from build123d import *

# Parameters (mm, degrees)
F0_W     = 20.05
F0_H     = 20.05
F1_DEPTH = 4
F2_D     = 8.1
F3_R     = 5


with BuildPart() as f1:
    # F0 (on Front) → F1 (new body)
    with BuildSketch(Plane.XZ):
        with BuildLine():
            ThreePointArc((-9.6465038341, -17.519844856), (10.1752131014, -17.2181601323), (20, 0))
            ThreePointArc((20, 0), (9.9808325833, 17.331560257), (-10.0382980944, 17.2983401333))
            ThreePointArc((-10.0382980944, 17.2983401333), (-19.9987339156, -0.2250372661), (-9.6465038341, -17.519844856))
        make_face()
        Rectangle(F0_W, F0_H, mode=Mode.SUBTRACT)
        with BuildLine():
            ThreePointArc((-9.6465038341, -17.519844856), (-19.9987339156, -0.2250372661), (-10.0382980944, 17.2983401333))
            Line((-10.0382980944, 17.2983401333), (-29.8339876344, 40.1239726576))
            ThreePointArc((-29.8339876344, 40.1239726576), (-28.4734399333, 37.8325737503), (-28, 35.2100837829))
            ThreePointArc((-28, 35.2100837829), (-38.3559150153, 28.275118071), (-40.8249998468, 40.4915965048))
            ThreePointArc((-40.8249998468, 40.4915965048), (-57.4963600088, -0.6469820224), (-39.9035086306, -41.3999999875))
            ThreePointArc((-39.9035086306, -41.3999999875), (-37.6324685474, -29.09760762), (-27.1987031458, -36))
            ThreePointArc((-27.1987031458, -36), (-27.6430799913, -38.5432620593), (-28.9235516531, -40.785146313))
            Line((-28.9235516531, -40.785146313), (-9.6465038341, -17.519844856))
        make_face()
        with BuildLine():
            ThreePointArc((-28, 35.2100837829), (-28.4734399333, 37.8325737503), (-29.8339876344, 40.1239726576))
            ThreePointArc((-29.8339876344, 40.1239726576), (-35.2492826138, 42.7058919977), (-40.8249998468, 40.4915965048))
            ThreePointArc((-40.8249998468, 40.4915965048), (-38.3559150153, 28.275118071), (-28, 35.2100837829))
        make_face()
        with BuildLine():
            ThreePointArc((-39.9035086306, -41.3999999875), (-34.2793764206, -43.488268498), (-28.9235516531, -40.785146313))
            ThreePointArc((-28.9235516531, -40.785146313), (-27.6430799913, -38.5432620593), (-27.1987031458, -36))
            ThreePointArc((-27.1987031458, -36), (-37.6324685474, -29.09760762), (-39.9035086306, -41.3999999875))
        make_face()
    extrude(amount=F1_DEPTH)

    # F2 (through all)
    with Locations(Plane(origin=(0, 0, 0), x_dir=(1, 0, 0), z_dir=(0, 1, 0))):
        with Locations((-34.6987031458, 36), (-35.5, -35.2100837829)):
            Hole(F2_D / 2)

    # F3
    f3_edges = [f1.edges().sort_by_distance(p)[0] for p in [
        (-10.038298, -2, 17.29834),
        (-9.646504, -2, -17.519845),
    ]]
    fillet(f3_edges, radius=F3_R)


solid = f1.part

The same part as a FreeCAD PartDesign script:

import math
import FreeCAD as App
import Part
import Sketcher
Q = App.Units.Quantity


def edges_at(feature, points):
    """Names of the edges that pass closest to the given points."""
    edges = feature.Shape.Edges
    near = lambda p: min(range(len(edges)), key=lambda i: edges[i].distToShape(Part.Vertex(*p))[0])
    return sorted({f"Edge{near(p) + 1}" for p in points})

doc = App.newDocument("Part")
body = doc.addObject("PartDesign::Body", "Body")

sketch1 = doc.addObject("Sketcher::SketchObject", "Sketch")
body.addObject(sketch1)
sketch1.AttachmentSupport = (doc.XZ_Plane, [""])
sketch1.MapMode = "FlatFace"
sketch1.addGeometry(Part.ArcOfCircle(Part.Circle(App.Vector(0, 0, 0), App.Vector(0, 0, 1), 20), math.radians(-119), math.radians(0)), False)
sketch1.addGeometry(Part.ArcOfCircle(Part.Circle(App.Vector(0, 0, 0), App.Vector(0, 0, 1), 20), math.radians(0), math.radians(120)), False)
sketch1.addGeometry(Part.LineSegment(App.Vector(-10, 17, 0), App.Vector(-30, 40, 0)), False)
sketch1.addGeometry(Part.ArcOfCircle(Part.Circle(App.Vector(-36, 35, 0), App.Vector(0, 0, 1), 8), math.radians(41), math.radians(135)), False)
sketch1.addGeometry(Part.ArcOfCircle(Part.Circle(App.Vector(0, 0, 0), App.Vector(0, 0, 1), 58), math.radians(135), math.radians(226)), False)
sketch1.addGeometry(Part.ArcOfCircle(Part.Circle(App.Vector(-35, -36, 0), App.Vector(0, 0, 1), 8), math.radians(-134), math.radians(-40)), False)
sketch1.addGeometry(Part.LineSegment(App.Vector(-29, -41, 0), App.Vector(-10, -18, 0)), False)
sketch1.addGeometry(Part.LineSegment(App.Vector(10, -10, 0), App.Vector(-10, -10, 0)), False)
sketch1.addGeometry(Part.LineSegment(App.Vector(-10, -10, 0), App.Vector(-10, 10, 0)), False)
sketch1.addGeometry(Part.LineSegment(App.Vector(-10, 10, 0), App.Vector(10, 10, 0)), False)
sketch1.addGeometry(Part.LineSegment(App.Vector(10, 10, 0), App.Vector(10, -10, 0)), False)
sketch1.addConstraint(Sketcher.Constraint("Tangent", 0, 2, 1, 1))
sketch1.addConstraint(Sketcher.Constraint("Coincident", 1, 2, 2, 1))
sketch1.addConstraint(Sketcher.Constraint("Tangent", 2, 2, 3, 1))
sketch1.addConstraint(Sketcher.Constraint("Tangent", 3, 2, 4, 1))
sketch1.addConstraint(Sketcher.Constraint("Tangent", 4, 2, 5, 1))
sketch1.addConstraint(Sketcher.Constraint("Tangent", 5, 2, 6, 1))
sketch1.addConstraint(Sketcher.Constraint("Coincident", 6, 2, 0, 1))
sketch1.addConstraint(Sketcher.Constraint("Coincident", 7, 2, 8, 1))
sketch1.addConstraint(Sketcher.Constraint("Coincident", 8, 2, 9, 1))
sketch1.addConstraint(Sketcher.Constraint("Coincident", 9, 2, 10, 1))
sketch1.addConstraint(Sketcher.Constraint("Coincident", 10, 2, 7, 1))
sketch1.addConstraint(Sketcher.Constraint("Horizontal", 7))
sketch1.addConstraint(Sketcher.Constraint("Vertical", 8))
sketch1.addConstraint(Sketcher.Constraint("Horizontal", 9))
sketch1.addConstraint(Sketcher.Constraint("Vertical", 10))
sketch1.addConstraint(Sketcher.Constraint("Coincident", 0, 3, -1, 1))
sketch1.addConstraint(Sketcher.Constraint("Coincident", 4, 3, -1, 1))
sketch1.addConstraint(Sketcher.Constraint("Equal", 0, 1))
sketch1.addConstraint(Sketcher.Constraint("Equal", 3, 5))
sketch1.addConstraint(Sketcher.Constraint("Symmetric", 7, 2, 9, 2, -1, 1))
sketch1.addConstraint(Sketcher.Constraint("PointOnObject", 0, 2, -1))
sketch1.addConstraint(Sketcher.Constraint("Equal", 9, 8))
sketch1.addConstraint(Sketcher.Constraint("Equal", 2, 6))
sketch1.addConstraint(Sketcher.Constraint("Radius", 0, Q("20 mm")))
sketch1.addConstraint(Sketcher.Constraint("Radius", 3, Q("7.5 mm")))
sketch1.addConstraint(Sketcher.Constraint("Radius", 4, Q("57.5 mm")))
sketch1.addConstraint(Sketcher.Constraint("DistanceY", 5, 3, -1, 1, Q("36 mm")))
sketch1.addConstraint(Sketcher.Constraint("DistanceX", 7, 2, 7, 1, Q("20.05 mm")))
sketch1.addConstraint(Sketcher.Constraint("DistanceX", 3, 3, -1, 1, Q("35.5 mm")))
sketch1.addConstraint(Sketcher.Constraint("DistanceX", 1, 2, -1, 1, Q("10.038298 mm")))
pad1 = doc.addObject("PartDesign::Pad", "Pad")
body.addObject(pad1)
pad1.Profile = sketch1
pad1.Length = 4

sketch2 = doc.addObject("Sketcher::SketchObject", "Sketch001")
body.addObject(sketch2)
sketch2.AttachmentSupport = (doc.XZ_Plane, [""])
sketch2.MapMode = "FlatFace"
sketch2.addGeometry(Part.Circle(App.Vector(-34.7, -36, 0), App.Vector(0, 0, 1), 4), False)
sketch2.addGeometry(Part.Circle(App.Vector(-35.5, 35.2, 0), App.Vector(0, 0, 1), 4), False)
sketch2.addConstraint(Sketcher.Constraint("Equal", 0, 1))
sketch2.addConstraint(Sketcher.Constraint("Diameter", 0, Q("8.1 mm")))
sketch2.addConstraint(Sketcher.Constraint("DistanceY", 0, 3, -1, 1, Q("36 mm")))
sketch2.addConstraint(Sketcher.Constraint("DistanceX", 1, 3, -1, 1, Q("35.5 mm")))
sketch2.addConstraint(Sketcher.Constraint("DistanceX", 0, 3, -1, 1, Q("34.698703 mm")))
sketch2.addConstraint(Sketcher.Constraint("DistanceY", -1, 1, 1, 3, Q("35.210084 mm")))
doc.recompute()
hole = doc.addObject("PartDesign::Hole", "Hole")
body.addObject(hole)
hole.Profile = sketch2
hole.ThreadType = "None"
hole.Diameter = 8.1
hole.DepthType = "ThroughAll"
hole.Reversed = True
doc.recompute()

fillet = doc.addObject("PartDesign::Fillet", "Fillet")
body.addObject(fillet)
fillet.Base = (hole, edges_at(hole, [(-10.038, -2, 17.298), (-9.647, -2, -17.52)]))
fillet.Radius = 5

doc.recompute()
